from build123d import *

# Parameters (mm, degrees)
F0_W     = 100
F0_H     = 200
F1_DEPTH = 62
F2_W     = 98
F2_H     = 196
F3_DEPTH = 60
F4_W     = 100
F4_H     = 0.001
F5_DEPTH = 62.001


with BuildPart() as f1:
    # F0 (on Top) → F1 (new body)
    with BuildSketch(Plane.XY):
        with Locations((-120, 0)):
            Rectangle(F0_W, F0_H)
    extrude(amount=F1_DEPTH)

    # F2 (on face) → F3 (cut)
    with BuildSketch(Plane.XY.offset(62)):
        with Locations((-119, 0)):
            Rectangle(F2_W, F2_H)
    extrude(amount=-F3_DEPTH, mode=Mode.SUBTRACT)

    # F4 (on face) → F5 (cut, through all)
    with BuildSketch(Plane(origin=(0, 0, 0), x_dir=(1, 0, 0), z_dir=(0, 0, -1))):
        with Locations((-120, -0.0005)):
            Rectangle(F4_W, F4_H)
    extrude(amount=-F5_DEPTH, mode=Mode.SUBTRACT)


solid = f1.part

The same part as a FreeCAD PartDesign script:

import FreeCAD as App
import Part
import Sketcher


def add_polygon(sketch, points):
    """Adds a closed chain of lines whose ends are joined by coincident constraints."""
    first, n = sketch.GeometryCount, len(points)
    for a, b in zip(points, points[1:] + points[:1]):
        sketch.addGeometry(Part.LineSegment(App.Vector(*a, 0), App.Vector(*b, 0)), False)
    for i in range(n):
        sketch.addConstraint(Sketcher.Constraint("Coincident", first + i, 2, first + (i + 1) % n, 1))

doc = App.newDocument("Part")
body = doc.addObject("PartDesign::Body", "Body")
body.AllowCompound = True

# Sketch on XY plane
sketch1 = body.newObject("Sketcher::SketchObject", "Sketch")
sketch1.AttachmentSupport = (doc.getObject("XY_Plane"), [""])
sketch1.MapMode = "FlatFace"
add_polygon(sketch1, [(-170, 100), (-170, -100), (-70, -100), (-70, 100)])  # lines 0-3
sketch1.addConstraint([
    Sketcher.Constraint("Vertical", 0),
    Sketcher.Constraint("Horizontal", 1),
    Sketcher.Constraint("Vertical", 2),
    Sketcher.Constraint("Horizontal", 3),
    Sketcher.Constraint("DistanceX", 1, 1, 1, 2, 100.0),
    Sketcher.Constraint("DistanceY", 0, 2, 0, 1, 200.0),
    Sketcher.Constraint("DistanceX", 0, 2, -1, 1, 170.0),
    Sketcher.Constraint("DistanceY", 0, 2, -1, 1, 100.0),
])
pad1 = body.newObject("PartDesign::Pad", "Pad")
pad1.Profile = sketch1
pad1.Length = 62

# Sketch on XY plane
sketch2 = body.newObject("Sketcher::SketchObject", "Sketch001")
sketch2.AttachmentSupport = (doc.getObject("XY_Plane"), [""])
sketch2.MapMode = "FlatFace"
sketch2.AttachmentOffset = App.Placement(App.Vector(0, 0, 62), App.Rotation())
add_polygon(sketch2, [(-168, 98), (-168, -98), (-70, -98), (-70, 98)])  # lines 0-3
sketch2.addConstraint([
    Sketcher.Constraint("Vertical", 0),
    Sketcher.Constraint("Horizontal", 1),
    Sketcher.Constraint("Vertical", 2),
    Sketcher.Constraint("Horizontal", 3),
    Sketcher.Constraint("DistanceX", 1, 1, 1, 2, 98.0),
    Sketcher.Constraint("DistanceY", 0, 2, 0, 1, 196.0),
    Sketcher.Constraint("DistanceX", 0, 2, -1, 1, 168.0),
    Sketcher.Constraint("DistanceY", 0, 2, -1, 1, 98.0),
])
pocket1 = body.newObject("PartDesign::Pocket", "Pocket")
pocket1.Profile = sketch2
pocket1.Length = 60

# Sketch on XY plane
sketch3 = body.newObject("Sketcher::SketchObject", "Sketch002")
sketch3.AttachmentSupport = (doc.getObject("XY_Plane"), [""])
sketch3.MapMode = "FlatFace"
add_polygon(sketch3, [(-170, 0), (-170, 0.001), (-70, 0.001), (-70, 0)])  # lines 0-3
sketch3.addConstraint([
    Sketcher.Constraint("Vertical", 0),
    Sketcher.Constraint("Horizontal", 1),
    Sketcher.Constraint("Vertical", 2),
    Sketcher.Constraint("Horizontal", 3),
    Sketcher.Constraint("PointOnObject", 2, 2, -1),
    Sketcher.Constraint("DistanceX", 1, 1, 1, 2, 100.0),
    Sketcher.Constraint("DistanceX", 0, 2, -1, 1, 170.0),
    Sketcher.Constraint("DistanceY", 0, 1, 0, 2, 0.001),
])
pocket2 = body.newObject("PartDesign::Pocket", "Pocket001")
pocket2.Profile = sketch3
pocket2.Length = 62.001
pocket2.Reversed = True

doc.recompute()
